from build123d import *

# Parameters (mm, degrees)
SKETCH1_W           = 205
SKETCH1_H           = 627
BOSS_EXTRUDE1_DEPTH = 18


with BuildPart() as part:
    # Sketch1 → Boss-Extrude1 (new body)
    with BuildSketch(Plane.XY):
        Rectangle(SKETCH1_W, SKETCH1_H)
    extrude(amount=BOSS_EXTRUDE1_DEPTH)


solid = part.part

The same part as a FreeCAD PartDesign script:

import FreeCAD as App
import Part
import Sketcher

doc = App.newDocument("Part")
body = doc.addObject("PartDesign::Body", "Body")

# Sketch on XY plane
sketch1 = body.newObject("Sketcher::SketchObject", "Sketch")
sketch1.AttachmentSupport = (doc.getObject("XY_Plane"), [""])
sketch1.MapMode = "FlatFace"
sketch1.addGeometry([
    Part.LineSegment(App.Vector(-102.5, 313.5, 0), App.Vector(-102.5, -313.5, 0)),
    Part.LineSegment(App.Vector(-102.5, -313.5, 0), App.Vector(102.5, -313.5, 0)),
    Part.LineSegment(App.Vector(102.5, -313.5, 0), App.Vector(102.5, 313.5, 0)),
    Part.LineSegment(App.Vector(102.5, 313.5, 0), App.Vector(-102.5, 313.5, 0)),
], False)
sketch1.addConstraint([
    Sketcher.Constraint("Coincident", 0, 2, 1, 1),
    Sketcher.Constraint("Coincident", 1, 2, 2, 1),
    Sketcher.Constraint("Coincident", 2, 2, 3, 1),
    Sketcher.Constraint("Coincident", 3, 2, 0, 1),
    Sketcher.Constraint("Vertical", 0),
    Sketcher.Constraint("Horizontal", 1),
    Sketcher.Constraint("Vertical", 2),
    Sketcher.Constraint("Horizontal", 3),
    Sketcher.Constraint("Symmetric", 0, 2, 2, 2, -1, 1),
    Sketcher.Constraint("DistanceX", 1, 1, 1, 2, 205.0),
    Sketcher.Constraint("DistanceY", 0, 2, 0, 1, 627.0),
])
pad1 = body.newObject("PartDesign::Pad", "Pad")
pad1.Profile = sketch1
pad1.Length = 18

doc.recompute()
